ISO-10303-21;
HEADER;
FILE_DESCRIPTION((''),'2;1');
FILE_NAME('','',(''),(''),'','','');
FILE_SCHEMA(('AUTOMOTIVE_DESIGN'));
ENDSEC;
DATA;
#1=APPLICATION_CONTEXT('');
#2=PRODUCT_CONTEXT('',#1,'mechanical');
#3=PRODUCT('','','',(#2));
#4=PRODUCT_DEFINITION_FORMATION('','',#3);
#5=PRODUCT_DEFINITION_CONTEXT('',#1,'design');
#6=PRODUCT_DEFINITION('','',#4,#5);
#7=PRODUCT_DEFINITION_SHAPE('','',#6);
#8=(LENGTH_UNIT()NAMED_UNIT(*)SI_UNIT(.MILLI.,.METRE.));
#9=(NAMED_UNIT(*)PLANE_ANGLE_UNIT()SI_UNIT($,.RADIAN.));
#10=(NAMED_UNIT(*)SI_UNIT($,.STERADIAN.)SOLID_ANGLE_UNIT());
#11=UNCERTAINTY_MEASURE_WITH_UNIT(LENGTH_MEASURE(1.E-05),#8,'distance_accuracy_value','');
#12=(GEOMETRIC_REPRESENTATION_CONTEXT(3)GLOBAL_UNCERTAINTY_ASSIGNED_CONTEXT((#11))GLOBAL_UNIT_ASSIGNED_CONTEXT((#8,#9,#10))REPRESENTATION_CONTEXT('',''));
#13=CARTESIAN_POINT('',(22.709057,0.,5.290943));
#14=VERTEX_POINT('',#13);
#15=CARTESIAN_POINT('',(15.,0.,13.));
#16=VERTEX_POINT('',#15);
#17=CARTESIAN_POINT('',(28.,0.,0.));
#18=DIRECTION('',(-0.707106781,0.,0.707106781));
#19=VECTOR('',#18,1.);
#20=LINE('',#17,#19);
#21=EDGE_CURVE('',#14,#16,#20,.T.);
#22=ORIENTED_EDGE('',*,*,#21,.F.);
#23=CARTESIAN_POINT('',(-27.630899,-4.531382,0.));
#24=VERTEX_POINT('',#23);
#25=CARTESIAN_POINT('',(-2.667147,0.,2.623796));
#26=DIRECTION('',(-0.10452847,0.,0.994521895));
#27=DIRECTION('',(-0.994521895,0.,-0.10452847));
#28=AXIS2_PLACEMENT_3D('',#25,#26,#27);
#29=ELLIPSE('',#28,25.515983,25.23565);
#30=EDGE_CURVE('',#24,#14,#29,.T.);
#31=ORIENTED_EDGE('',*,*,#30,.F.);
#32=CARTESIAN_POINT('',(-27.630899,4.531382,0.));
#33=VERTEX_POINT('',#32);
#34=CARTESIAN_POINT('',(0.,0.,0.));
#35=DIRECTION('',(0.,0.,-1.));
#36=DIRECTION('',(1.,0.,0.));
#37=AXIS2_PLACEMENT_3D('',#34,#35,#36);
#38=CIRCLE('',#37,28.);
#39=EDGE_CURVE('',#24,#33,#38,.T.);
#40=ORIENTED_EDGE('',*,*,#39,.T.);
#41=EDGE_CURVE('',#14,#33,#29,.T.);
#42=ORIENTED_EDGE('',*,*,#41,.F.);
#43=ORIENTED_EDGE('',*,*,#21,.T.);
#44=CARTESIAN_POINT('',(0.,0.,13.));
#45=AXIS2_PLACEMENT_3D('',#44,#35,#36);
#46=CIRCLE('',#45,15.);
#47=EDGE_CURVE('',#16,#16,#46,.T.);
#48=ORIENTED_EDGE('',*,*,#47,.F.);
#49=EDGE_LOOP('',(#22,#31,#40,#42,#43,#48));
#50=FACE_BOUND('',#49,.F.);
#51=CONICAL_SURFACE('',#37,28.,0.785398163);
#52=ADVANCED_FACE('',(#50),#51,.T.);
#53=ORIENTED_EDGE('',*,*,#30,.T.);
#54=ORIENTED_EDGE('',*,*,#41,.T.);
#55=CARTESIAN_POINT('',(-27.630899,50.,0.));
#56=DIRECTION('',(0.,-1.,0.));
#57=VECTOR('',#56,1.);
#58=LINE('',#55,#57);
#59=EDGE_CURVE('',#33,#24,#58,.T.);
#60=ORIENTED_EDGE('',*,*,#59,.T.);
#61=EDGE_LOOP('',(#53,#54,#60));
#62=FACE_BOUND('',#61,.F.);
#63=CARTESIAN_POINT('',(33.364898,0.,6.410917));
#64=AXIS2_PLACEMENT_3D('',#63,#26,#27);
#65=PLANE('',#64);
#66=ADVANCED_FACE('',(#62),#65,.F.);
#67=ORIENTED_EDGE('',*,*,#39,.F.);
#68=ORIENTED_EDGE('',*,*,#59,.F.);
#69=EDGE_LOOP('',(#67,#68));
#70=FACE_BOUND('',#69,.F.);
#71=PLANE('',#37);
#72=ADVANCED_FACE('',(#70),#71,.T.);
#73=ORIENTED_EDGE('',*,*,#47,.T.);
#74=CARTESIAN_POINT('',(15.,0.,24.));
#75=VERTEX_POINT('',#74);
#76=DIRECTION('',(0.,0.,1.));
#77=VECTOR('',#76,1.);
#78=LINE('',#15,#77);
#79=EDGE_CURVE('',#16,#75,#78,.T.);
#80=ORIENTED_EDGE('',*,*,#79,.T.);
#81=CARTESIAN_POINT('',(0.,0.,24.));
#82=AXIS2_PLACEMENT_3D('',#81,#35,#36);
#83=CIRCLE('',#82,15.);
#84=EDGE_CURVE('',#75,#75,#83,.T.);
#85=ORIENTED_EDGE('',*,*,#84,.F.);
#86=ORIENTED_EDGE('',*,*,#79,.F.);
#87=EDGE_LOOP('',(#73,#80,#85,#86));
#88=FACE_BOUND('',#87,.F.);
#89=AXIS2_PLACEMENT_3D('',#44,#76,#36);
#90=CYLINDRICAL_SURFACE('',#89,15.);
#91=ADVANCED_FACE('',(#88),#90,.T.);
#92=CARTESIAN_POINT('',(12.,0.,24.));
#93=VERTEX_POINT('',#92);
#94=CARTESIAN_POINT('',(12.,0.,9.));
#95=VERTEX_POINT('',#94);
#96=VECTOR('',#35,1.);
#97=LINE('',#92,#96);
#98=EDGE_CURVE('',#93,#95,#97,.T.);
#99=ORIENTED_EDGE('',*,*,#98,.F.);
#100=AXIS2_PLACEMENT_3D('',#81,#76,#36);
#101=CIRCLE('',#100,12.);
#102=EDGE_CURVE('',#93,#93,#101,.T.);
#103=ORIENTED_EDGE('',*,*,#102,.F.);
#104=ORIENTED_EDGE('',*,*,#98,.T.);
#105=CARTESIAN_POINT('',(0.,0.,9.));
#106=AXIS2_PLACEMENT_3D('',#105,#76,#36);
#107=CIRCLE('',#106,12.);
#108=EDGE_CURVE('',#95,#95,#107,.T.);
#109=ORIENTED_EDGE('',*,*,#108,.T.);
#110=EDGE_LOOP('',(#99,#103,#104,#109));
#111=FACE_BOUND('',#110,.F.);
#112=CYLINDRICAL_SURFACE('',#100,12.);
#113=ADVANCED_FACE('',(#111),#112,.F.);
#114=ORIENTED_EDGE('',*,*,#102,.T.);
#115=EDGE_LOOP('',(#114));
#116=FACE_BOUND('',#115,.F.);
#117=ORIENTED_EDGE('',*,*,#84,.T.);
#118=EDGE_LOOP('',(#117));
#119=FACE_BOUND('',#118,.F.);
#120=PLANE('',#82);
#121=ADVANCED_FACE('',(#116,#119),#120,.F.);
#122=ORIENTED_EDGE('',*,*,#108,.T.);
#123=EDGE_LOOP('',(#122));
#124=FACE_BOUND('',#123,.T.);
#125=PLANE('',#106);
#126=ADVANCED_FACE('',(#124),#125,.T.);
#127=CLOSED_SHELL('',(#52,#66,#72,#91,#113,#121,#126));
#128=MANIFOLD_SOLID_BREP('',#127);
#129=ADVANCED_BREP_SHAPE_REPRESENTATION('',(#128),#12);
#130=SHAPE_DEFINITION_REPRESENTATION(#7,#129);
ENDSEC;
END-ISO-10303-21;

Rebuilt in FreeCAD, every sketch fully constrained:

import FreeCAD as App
import Part
import Sketcher
from FreeCAD import Vector
Q = App.Units.Quantity

doc = App.newDocument("Part")
body = doc.addObject("PartDesign::Body", "Body")

# Sketch on XZ plane
sketch1 = body.newObject("Sketcher::SketchObject", "Sketch")
sketch1.AttachmentSupport = (doc.getObject("XZ_Plane"), [""])
sketch1.MapMode = "FlatFace"
sketch1.addGeometry(Part.LineSegment(Vector(0, 24, 0), Vector(0, 0, 0)), False)
sketch1.addGeometry(Part.LineSegment(Vector(0, 0, 0), Vector(28, 0, 0)), False)
sketch1.addGeometry(Part.LineSegment(Vector(28, 0, 0), Vector(15, 13, 0)), False)
sketch1.addGeometry(Part.LineSegment(Vector(15, 13, 0), Vector(15, 24, 0)), False)
sketch1.addGeometry(Part.LineSegment(Vector(15, 24, 0), Vector(0, 24, 0)), False)
sketch1.addConstraint(Sketcher.Constraint("Coincident", 0, 2, 1, 1))
sketch1.addConstraint(Sketcher.Constraint("Coincident", 1, 2, 2, 1))
sketch1.addConstraint(Sketcher.Constraint("Coincident", 2, 2, 3, 1))
sketch1.addConstraint(Sketcher.Constraint("Coincident", 3, 2, 4, 1))
sketch1.addConstraint(Sketcher.Constraint("Coincident", 4, 2, 0, 1))
sketch1.addConstraint(Sketcher.Constraint("Vertical", 0))
sketch1.addConstraint(Sketcher.Constraint("Horizontal", 1))
sketch1.addConstraint(Sketcher.Constraint("Vertical", 3))
sketch1.addConstraint(Sketcher.Constraint("Horizontal", 4))
sketch1.addConstraint(Sketcher.Constraint("Coincident", 0, 2, -1, 1))
sketch1.addConstraint(Sketcher.Constraint("DistanceX", 1, 1, 1, 2, 28.0))
sketch1.addConstraint(Sketcher.Constraint("DistanceX", 4, 2, 4, 1, 15.0))
sketch1.addConstraint(Sketcher.Constraint("DistanceY", 0, 2, 0, 1, 24.0))
sketch1.addConstraint(Sketcher.Constraint("DistanceY", 3, 1, 3, 2, 11.0))
revolution = body.newObject("PartDesign::Revolution", "Revolution")
revolution.Profile = sketch1
revolution.ReferenceAxis = (sketch1, ["V_Axis"])
revolution.Angle = 360

# Sketch on XY plane
sketch2 = body.newObject("Sketcher::SketchObject", "Sketch001")
sketch2.AttachmentSupport = (doc.getObject("XY_Plane"), [""])
sketch2.MapMode = "FlatFace"
sketch2.AttachmentOffset = App.Placement(Vector(0, 0, 24), App.Rotation())
sketch2.addGeometry(Part.Circle(Vector(0, 0, 0), Vector(0, 0, 1), 12), False)
sketch2.addConstraint(Sketcher.Constraint("Coincident", 0, 3, -1, 1))
sketch2.addConstraint(Sketcher.Constraint("Diameter", 0, 24.0))
pocket1 = body.newObject("PartDesign::Pocket", "Pocket")
pocket1.Profile = sketch2
pocket1.Length = 15

# Sketch on XZ plane
sketch3 = body.newObject("Sketcher::SketchObject", "Sketch002")
sketch3.AttachmentSupport = (doc.getObject("XZ_Plane"), [""])
sketch3.MapMode = "FlatFace"
sketch3.addGeometry(Part.LineSegment(Vector(33, 6, 0), Vector(-28, 0, 0)), False)
sketch3.addGeometry(Part.LineSegment(Vector(-28, 0, 0), Vector(33, 0, 0)), False)
sketch3.addGeometry(Part.LineSegment(Vector(33, 0, 0), Vector(33, 6, 0)), False)
sketch3.addConstraint(Sketcher.Constraint("Coincident", 0, 2, 1, 1))
sketch3.addConstraint(Sketcher.Constraint("Coincident", 1, 2, 2, 1))
sketch3.addConstraint(Sketcher.Constraint("Coincident", 2, 2, 0, 1))
sketch3.addConstraint(Sketcher.Constraint("Horizontal", 1))
sketch3.addConstraint(Sketcher.Constraint("Vertical", 2))
sketch3.addConstraint(Sketcher.Constraint("PointOnObject", 0, 2, -1))
sketch3.addConstraint(Sketcher.Constraint("Angle", 0, Q("-174 deg")))
sketch3.addConstraint(Sketcher.Constraint("DistanceX", 0, 2, -1, 1, 27.630899))
sketch3.addConstraint(Sketcher.Constraint("Distance", 0, 61.331779))
pocket2 = body.newObject("PartDesign::Pocket", "Pocket001")
pocket2.Profile = sketch3
pocket2.Length = 100
pocket2.Midplane = True

doc.recompute()
